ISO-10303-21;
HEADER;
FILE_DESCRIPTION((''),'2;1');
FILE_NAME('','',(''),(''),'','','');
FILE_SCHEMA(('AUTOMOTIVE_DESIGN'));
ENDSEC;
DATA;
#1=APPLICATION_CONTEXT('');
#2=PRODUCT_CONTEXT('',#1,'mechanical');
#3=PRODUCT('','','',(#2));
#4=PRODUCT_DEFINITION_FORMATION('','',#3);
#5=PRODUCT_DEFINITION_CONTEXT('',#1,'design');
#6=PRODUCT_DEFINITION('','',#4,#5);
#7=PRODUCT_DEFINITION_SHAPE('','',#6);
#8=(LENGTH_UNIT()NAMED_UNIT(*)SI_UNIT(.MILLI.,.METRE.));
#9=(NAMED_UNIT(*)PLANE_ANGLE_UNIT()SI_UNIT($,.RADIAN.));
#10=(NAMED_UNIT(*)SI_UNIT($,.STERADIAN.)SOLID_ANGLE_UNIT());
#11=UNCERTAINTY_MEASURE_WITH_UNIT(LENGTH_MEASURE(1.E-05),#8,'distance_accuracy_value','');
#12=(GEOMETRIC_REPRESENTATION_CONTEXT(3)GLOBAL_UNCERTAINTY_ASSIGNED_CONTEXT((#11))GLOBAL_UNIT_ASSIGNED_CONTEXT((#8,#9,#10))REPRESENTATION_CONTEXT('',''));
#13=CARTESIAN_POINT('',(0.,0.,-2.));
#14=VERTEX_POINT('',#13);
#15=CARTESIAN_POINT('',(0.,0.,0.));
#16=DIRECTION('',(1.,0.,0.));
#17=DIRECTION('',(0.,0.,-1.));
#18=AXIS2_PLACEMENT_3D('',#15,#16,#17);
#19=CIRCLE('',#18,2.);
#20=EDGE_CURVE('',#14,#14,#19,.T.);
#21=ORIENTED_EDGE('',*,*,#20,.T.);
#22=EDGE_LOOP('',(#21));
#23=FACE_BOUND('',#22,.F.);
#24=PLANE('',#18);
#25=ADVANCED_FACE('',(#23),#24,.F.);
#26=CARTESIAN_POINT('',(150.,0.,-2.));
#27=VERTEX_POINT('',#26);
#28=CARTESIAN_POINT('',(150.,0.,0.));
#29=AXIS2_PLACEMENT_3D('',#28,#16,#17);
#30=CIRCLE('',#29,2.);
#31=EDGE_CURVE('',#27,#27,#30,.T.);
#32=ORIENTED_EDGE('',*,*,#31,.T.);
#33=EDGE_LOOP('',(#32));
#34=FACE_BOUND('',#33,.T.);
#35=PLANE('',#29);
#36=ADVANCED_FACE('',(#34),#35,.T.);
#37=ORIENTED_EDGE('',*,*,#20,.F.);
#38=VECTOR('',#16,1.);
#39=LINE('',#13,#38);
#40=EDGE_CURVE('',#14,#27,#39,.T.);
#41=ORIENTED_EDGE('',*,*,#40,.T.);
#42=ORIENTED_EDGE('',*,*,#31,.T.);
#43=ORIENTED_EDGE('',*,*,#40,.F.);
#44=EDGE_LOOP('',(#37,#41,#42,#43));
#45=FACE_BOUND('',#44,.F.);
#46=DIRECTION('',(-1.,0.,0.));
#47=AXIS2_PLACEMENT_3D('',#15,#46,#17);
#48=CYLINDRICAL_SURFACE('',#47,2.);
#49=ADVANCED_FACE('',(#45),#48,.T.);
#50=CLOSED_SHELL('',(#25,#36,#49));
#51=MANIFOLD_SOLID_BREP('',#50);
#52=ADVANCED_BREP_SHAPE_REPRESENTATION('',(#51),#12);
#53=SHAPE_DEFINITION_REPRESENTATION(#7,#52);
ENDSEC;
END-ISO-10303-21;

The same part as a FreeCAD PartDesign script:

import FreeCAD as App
import Part
import Sketcher
Q = App.Units.Quantity

doc = App.newDocument("Part")
body = doc.addObject("PartDesign::Body", "Body")

# Sketch on YZ plane
sketch1 = body.newObject("Sketcher::SketchObject", "Sketch")
sketch1.AttachmentSupport = (doc.getObject("YZ_Plane"), [""])
sketch1.MapMode = "FlatFace"
sketch1.addGeometry(Part.Circle(App.Vector(0, 0, 0), App.Vector(0, 0, 1), 2), False)
sketch1.addConstraint(Sketcher.Constraint("Coincident", 0, 3, -1, 1))
sketch1.addConstraint(Sketcher.Constraint("Diameter", 0, Q("4 mm")))
pad1 = body.newObject("PartDesign::Pad", "Pad")
pad1.Profile = sketch1
pad1.Length = 150

doc.recompute()
